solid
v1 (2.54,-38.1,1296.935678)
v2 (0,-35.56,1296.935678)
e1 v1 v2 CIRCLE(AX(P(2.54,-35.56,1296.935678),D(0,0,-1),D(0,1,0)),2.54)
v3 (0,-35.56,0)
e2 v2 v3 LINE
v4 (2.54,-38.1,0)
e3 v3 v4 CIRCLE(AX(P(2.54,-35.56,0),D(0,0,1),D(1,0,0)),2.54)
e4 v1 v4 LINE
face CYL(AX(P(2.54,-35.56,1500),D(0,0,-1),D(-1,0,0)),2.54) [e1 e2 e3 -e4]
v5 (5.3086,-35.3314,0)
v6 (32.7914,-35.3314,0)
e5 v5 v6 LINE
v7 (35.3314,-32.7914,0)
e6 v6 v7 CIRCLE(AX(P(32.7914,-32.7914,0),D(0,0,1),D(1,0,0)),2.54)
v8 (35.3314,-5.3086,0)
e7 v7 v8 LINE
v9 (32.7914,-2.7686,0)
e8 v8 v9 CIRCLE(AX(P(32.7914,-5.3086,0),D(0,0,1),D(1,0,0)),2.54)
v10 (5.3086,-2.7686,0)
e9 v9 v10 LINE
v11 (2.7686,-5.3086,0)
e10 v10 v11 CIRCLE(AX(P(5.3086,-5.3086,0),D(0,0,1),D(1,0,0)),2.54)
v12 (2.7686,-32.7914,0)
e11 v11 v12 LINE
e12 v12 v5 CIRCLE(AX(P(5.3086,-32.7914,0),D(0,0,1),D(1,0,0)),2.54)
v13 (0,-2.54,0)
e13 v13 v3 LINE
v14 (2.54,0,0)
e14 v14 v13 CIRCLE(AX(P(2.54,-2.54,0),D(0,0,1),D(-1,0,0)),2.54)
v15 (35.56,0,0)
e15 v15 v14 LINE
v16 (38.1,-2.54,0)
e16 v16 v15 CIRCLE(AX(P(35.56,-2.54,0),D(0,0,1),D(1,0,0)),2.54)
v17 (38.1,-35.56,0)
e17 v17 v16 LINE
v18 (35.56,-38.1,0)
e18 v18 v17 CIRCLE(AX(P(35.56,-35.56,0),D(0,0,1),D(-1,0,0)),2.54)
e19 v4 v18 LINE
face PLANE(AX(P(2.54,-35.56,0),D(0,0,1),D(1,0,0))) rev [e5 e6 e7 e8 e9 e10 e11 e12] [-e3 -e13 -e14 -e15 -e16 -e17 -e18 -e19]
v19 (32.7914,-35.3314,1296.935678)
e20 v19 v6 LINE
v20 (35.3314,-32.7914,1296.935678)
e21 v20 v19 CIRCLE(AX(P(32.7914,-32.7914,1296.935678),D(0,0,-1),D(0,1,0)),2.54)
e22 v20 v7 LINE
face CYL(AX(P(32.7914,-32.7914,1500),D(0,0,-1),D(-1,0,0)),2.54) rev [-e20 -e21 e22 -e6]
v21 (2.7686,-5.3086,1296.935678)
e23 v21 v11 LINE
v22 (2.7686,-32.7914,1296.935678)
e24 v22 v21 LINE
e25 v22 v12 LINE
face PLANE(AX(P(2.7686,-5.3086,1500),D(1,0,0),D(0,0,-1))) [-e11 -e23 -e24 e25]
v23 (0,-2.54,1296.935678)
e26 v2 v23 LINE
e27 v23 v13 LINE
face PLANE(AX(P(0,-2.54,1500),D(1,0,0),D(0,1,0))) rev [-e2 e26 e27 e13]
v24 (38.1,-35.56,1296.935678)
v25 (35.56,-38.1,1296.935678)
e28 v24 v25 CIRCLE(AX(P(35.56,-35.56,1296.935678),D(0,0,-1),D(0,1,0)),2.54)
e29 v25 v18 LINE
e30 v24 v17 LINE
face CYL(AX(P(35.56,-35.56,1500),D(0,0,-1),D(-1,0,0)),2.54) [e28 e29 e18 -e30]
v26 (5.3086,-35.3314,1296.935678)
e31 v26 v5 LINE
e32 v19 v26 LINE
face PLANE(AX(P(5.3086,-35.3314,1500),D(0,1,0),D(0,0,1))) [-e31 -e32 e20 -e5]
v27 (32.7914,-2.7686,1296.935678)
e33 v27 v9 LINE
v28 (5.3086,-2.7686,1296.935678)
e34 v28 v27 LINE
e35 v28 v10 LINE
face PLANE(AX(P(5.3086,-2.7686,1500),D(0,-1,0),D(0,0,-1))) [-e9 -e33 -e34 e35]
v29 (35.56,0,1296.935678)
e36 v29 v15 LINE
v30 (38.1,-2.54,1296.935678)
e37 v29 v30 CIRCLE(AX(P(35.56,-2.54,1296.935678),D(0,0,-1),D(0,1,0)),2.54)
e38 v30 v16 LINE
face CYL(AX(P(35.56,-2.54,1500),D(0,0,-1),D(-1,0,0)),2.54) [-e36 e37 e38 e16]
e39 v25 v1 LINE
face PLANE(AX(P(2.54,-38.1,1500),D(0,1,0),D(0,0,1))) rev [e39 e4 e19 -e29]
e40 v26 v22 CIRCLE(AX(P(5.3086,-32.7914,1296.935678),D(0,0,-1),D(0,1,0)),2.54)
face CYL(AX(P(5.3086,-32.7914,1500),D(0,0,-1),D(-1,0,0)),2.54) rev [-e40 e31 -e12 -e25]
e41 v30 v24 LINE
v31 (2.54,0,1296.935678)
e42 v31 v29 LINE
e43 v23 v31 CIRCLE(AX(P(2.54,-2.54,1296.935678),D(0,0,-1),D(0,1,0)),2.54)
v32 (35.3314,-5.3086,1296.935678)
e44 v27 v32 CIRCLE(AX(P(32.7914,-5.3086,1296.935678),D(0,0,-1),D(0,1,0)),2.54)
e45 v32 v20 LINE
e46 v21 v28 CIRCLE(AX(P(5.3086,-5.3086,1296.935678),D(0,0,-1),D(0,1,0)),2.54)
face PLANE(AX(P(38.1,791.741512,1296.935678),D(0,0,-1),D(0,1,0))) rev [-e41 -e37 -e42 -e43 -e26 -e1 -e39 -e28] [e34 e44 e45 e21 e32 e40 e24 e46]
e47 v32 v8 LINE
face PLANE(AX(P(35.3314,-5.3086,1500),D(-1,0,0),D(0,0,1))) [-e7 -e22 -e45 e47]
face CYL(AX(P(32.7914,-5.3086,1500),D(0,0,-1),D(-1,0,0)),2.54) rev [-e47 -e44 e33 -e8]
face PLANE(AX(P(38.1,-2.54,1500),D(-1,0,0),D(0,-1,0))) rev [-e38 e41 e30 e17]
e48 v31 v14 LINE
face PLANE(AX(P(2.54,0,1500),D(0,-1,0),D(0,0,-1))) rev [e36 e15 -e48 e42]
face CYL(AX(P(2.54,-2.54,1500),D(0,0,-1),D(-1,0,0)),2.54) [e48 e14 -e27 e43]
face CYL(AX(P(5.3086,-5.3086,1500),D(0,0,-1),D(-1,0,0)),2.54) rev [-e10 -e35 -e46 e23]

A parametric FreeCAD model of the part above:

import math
import FreeCAD as App
import Part
import Sketcher

V = App.Vector
Q = App.Units.Quantity


def add_polygon(sketch, points):
    """Adds a closed chain of lines whose ends are joined by coincident constraints."""
    first, n = sketch.GeometryCount, len(points)
    for a, b in zip(points, points[1:] + points[:1]):
        sketch.addGeometry(Part.LineSegment(App.Vector(*a, 0), App.Vector(*b, 0)), False)
    for i in range(n):
        sketch.addConstraint(Sketcher.Constraint("Coincident", first + i, 2, first + (i + 1) % n, 1))

doc = App.newDocument("Part")
body = doc.addObject("PartDesign::Body", "Body")

# Sketch on XY plane
sketch1 = body.newObject("Sketcher::SketchObject", "Sketch")
sketch1.AttachmentSupport = (doc.getObject("XY_Plane"), [""])
sketch1.MapMode = "FlatFace"
sketch1.addGeometry(Part.LineSegment(V(35.56, 0, 0), V(2.54, 0, 0)), False)
sketch1.addGeometry(Part.ArcOfCircle(Part.Circle(V(2.54, -2.54, 0), V(0, 0, 1), 2.54), math.radians(90), math.radians(180)), False)
sketch1.addGeometry(Part.LineSegment(V(0, -2.54, 0), V(0, -35.56, 0)), False)
sketch1.addGeometry(Part.ArcOfCircle(Part.Circle(V(2.54, -35.56, 0), V(0, 0, 1), 2.54), math.radians(-180), math.radians(-90)), False)
sketch1.addGeometry(Part.LineSegment(V(2.54, -38.1, 0), V(35.56, -38.1, 0)), False)
sketch1.addGeometry(Part.ArcOfCircle(Part.Circle(V(35.56, -35.56, 0), V(0, 0, 1), 2.54), math.radians(-90), math.radians(0)), False)
sketch1.addGeometry(Part.LineSegment(V(38.1, -35.56, 0), V(38.1, -2.54, 0)), False)
sketch1.addGeometry(Part.ArcOfCircle(Part.Circle(V(35.56, -2.54, 0), V(0, 0, 1), 2.54), math.radians(0), math.radians(90)), False)
sketch1.addGeometry(Part.LineSegment(V(5.3086, -2.7686, 0), V(32.7914, -2.7686, 0)), False)
sketch1.addGeometry(Part.ArcOfCircle(Part.Circle(V(32.7914, -5.3086, 0), V(0, 0, 1), 2.54), math.radians(0), math.radians(90)), False)
sketch1.addGeometry(Part.LineSegment(V(35.3314, -5.3086, 0), V(35.3314, -32.7914, 0)), False)
sketch1.addGeometry(Part.ArcOfCircle(Part.Circle(V(32.7914, -32.7914, 0), V(0, 0, 1), 2.54), math.radians(-90), math.radians(0)), False)
sketch1.addGeometry(Part.LineSegment(V(32.7914, -35.3314, 0), V(5.3086, -35.3314, 0)), False)
sketch1.addGeometry(Part.ArcOfCircle(Part.Circle(V(5.3086, -32.7914, 0), V(0, 0, 1), 2.54), math.radians(-180), math.radians(-90)), False)
sketch1.addGeometry(Part.LineSegment(V(2.7686, -32.7914, 0), V(2.7686, -5.3086, 0)), False)
sketch1.addGeometry(Part.ArcOfCircle(Part.Circle(V(5.3086, -5.3086, 0), V(0, 0, 1), 2.54), math.radians(90), math.radians(180)), False)
sketch1.addConstraint(Sketcher.Constraint("Tangent", 0, 2, 1, 1))
sketch1.addConstraint(Sketcher.Constraint("Tangent", 1, 2, 2, 1))
sketch1.addConstraint(Sketcher.Constraint("Tangent", 2, 2, 3, 1))
sketch1.addConstraint(Sketcher.Constraint("Tangent", 3, 2, 4, 1))
sketch1.addConstraint(Sketcher.Constraint("Tangent", 4, 2, 5, 1))
sketch1.addConstraint(Sketcher.Constraint("Tangent", 5, 2, 6, 1))
sketch1.addConstraint(Sketcher.Constraint("Tangent", 6, 2, 7, 1))
sketch1.addConstraint(Sketcher.Constraint("Tangent", 7, 2, 0, 1))
sketch1.addConstraint(Sketcher.Constraint("Tangent", 8, 2, 9, 2))
sketch1.addConstraint(Sketcher.Constraint("Tangent", 9, 1, 10, 1))
sketch1.addConstraint(Sketcher.Constraint("Tangent", 10, 2, 11, 2))
sketch1.addConstraint(Sketcher.Constraint("Tangent", 11, 1, 12, 1))
sketch1.addConstraint(Sketcher.Constraint("Tangent", 12, 2, 13, 2))
sketch1.addConstraint(Sketcher.Constraint("Tangent", 13, 1, 14, 1))
sketch1.addConstraint(Sketcher.Constraint("Tangent", 14, 2, 15, 2))
sketch1.addConstraint(Sketcher.Constraint("Tangent", 15, 1, 8, 1))
sketch1.addConstraint(Sketcher.Constraint("Horizontal", 0))
sketch1.addConstraint(Sketcher.Constraint("Vertical", 2))
sketch1.addConstraint(Sketcher.Constraint("Horizontal", 4))
sketch1.addConstraint(Sketcher.Constraint("Vertical", 6))
sketch1.addConstraint(Sketcher.Constraint("Horizontal", 8))
sketch1.addConstraint(Sketcher.Constraint("Vertical", 10))
sketch1.addConstraint(Sketcher.Constraint("Horizontal", 12))
sketch1.addConstraint(Sketcher.Constraint("Vertical", 14))
sketch1.addConstraint(Sketcher.Constraint("Equal", 1, 3))
sketch1.addConstraint(Sketcher.Constraint("Equal", 3, 5))
sketch1.addConstraint(Sketcher.Constraint("Equal", 5, 7))
sketch1.addConstraint(Sketcher.Constraint("Equal", 7, 9))
sketch1.addConstraint(Sketcher.Constraint("Equal", 9, 11))
sketch1.addConstraint(Sketcher.Constraint("Equal", 11, 13))
sketch1.addConstraint(Sketcher.Constraint("Equal", 13, 15))
sketch1.addConstraint(Sketcher.Constraint("PointOnObject", 0, 2, -1))
sketch1.addConstraint(Sketcher.Constraint("PointOnObject", 1, 2, -2))
sketch1.addConstraint(Sketcher.Constraint("Equal", 4, 2))
sketch1.addConstraint(Sketcher.Constraint("Equal", 12, 10))
sketch1.addConstraint(Sketcher.Constraint("Radius", 1, Q("0.1 in")))
sketch1.addConstraint(Sketcher.Constraint("DistanceX", 0, 2, 0, 1, Q("1.3 in")))
sketch1.addConstraint(Sketcher.Constraint("DistanceX", 8, 1, 8, 2, Q("1.082 in")))
sketch1.addConstraint(Sketcher.Constraint("DistanceX", -1, 1, 9, 3, Q("1.291 in")))
sketch1.addConstraint(Sketcher.Constraint("DistanceY", 9, 3, -1, 1, Q("0.209 in")))
pad1 = body.newObject("PartDesign::Pad", "Pad")
pad1.Profile = sketch1
pad1.Length = 1500

# Sketch on YZ plane
sketch2 = body.newObject("Sketcher::SketchObject", "Sketch001")
sketch2.AttachmentSupport = (doc.getObject("YZ_Plane"), [""])
sketch2.MapMode = "FlatFace"
add_polygon(sketch2, [(1038.850896, -432.22427), (-38.1, -432.22427), (-38.1, 0), (1038.850896, 0)])  # lines 0-3
add_polygon(sketch2, [(791.741512, 1296.935678), (-925.728482, 1296.935678), (-925.728482, 2205.474634), (791.741512, 2205.474634)])  # lines 4-7
sketch2.addConstraint(Sketcher.Constraint("Horizontal", 0))
sketch2.addConstraint(Sketcher.Constraint("Vertical", 1))
sketch2.addConstraint(Sketcher.Constraint("Horizontal", 2))
sketch2.addConstraint(Sketcher.Constraint("Vertical", 3))
sketch2.addConstraint(Sketcher.Constraint("Horizontal", 4))
sketch2.addConstraint(Sketcher.Constraint("Vertical", 5))
sketch2.addConstraint(Sketcher.Constraint("Horizontal", 6))
sketch2.addConstraint(Sketcher.Constraint("Vertical", 7))
sketch2.addConstraint(Sketcher.Constraint("PointOnObject", 1, 2, -1))
sketch2.addConstraint(Sketcher.Constraint("DistanceX", 0, 2, -1, 1, Q("1.5 in")))
sketch2.addConstraint(Sketcher.Constraint("DistanceY", 1, 1, 1, 2, 432.22427))
sketch2.addConstraint(Sketcher.Constraint("DistanceX", 0, 2, 0, 1, 1076.950896))
sketch2.addConstraint(Sketcher.Constraint("DistanceX", 4, 2, 4, 1, 1717.469994))
sketch2.addConstraint(Sketcher.Constraint("DistanceY", 5, 1, 5, 2, 908.538956))
sketch2.addConstraint(Sketcher.Constraint("DistanceX", 4, 2, -1, 1, 925.728482))
sketch2.addConstraint(Sketcher.Constraint("DistanceY", -1, 1, 4, 2, 1296.935678))
pocket1 = body.newObject("PartDesign::Pocket", "Pocket")
pocket1.Profile = sketch2
pocket1.Type = "ThroughAll"
pocket1.Midplane = True

doc.recompute()
